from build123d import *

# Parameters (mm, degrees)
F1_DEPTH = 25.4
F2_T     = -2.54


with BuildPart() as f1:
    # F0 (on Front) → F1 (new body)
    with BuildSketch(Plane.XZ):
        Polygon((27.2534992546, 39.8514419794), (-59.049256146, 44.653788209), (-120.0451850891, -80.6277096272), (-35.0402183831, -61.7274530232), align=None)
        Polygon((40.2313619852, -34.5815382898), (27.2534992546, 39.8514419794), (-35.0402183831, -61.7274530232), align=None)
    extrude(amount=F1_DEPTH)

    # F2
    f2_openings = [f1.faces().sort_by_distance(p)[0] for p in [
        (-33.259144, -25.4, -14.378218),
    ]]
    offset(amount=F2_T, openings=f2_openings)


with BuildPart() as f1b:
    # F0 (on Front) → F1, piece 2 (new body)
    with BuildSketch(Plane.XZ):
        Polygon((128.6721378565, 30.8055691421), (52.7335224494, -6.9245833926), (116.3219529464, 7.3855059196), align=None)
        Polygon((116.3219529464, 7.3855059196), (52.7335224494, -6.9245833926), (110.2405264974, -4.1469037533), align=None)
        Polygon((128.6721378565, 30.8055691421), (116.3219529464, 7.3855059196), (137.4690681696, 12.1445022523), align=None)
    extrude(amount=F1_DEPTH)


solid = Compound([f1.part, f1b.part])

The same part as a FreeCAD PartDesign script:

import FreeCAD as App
import Part
import Sketcher

V = App.Vector
Q = App.Units.Quantity


def faces_at(feature, points):
    """Names of the faces that lie closest to the given points."""
    faces = feature.Shape.Faces
    near = lambda p: min(range(len(faces)), key=lambda i: faces[i].distToShape(Part.Vertex(*p))[0])
    return sorted({f"Face{near(p) + 1}" for p in points})


def add_polygon(sketch, points):
    """Adds a closed chain of lines whose ends are joined by coincident constraints."""
    first, n = sketch.GeometryCount, len(points)
    for a, b in zip(points, points[1:] + points[:1]):
        sketch.addGeometry(Part.LineSegment(App.Vector(*a, 0), App.Vector(*b, 0)), False)
    for i in range(n):
        sketch.addConstraint(Sketcher.Constraint("Coincident", first + i, 2, first + (i + 1) % n, 1))

doc = App.newDocument("Part")
body = doc.addObject("PartDesign::Body", "Body")

sketch1 = body.newObject("Sketcher::SketchObject", "Sketch")
sketch1.AttachmentSupport = (doc.getObject("XZ_Plane"), [""])
sketch1.MapMode = "FlatFace"
add_polygon(sketch1, [(27, 40), (-59, 45), (-120, -81), (-35, -62), (40, -35)])
sketch1.addConstraint(Sketcher.Constraint("DistanceX", -1, 1, 4, 2, 27.253499))
sketch1.addConstraint(Sketcher.Constraint("Distance", 2, 87.08079))
sketch1.addConstraint(Sketcher.Constraint("DistanceY", -1, 1, 0, 2, 44.653788))
sketch1.addConstraint(Sketcher.Constraint("DistanceY", 1, 2, -1, 1, 80.62771))
sketch1.addConstraint(Sketcher.Constraint("DistanceX", 2, 2, -1, 1, 35.040218))
sketch1.addConstraint(Sketcher.Constraint("DistanceX", -1, 1, 3, 2, 40.231362))
sketch1.addConstraint(Sketcher.Constraint("DistanceY", 3, 2, -1, 1, 34.581538))
sketch1.addConstraint(Sketcher.Constraint("DistanceY", -1, 1, 4, 2, 39.851442))
sketch1.addConstraint(Sketcher.Constraint("DistanceX", 1, 2, 0, 2, 60.995929))
sketch1.addConstraint(Sketcher.Constraint("DistanceY", 2, 2, 0, 2, 106.381241))
pad1 = body.newObject("PartDesign::Pad", "Pad")
pad1.Profile = sketch1
pad1.Length = Q("1 in")
doc.recompute()

thickness = body.newObject("PartDesign::Thickness", "Thickness")
thickness.Base = (pad1, faces_at(pad1, [(-39.907, -25.4, -17.987)]))
thickness.Value = Q("0.1 in")
thickness.Reversed = True
thickness.Join = "Arc"
body2 = doc.addObject("PartDesign::Body", "Body001")

sketch2 = body2.newObject("Sketcher::SketchObject", "Sketch001")
sketch2.AttachmentSupport = (doc.getObject("XZ_Plane001"), [""])
sketch2.MapMode = "FlatFace"
add_polygon(sketch2, [(129, 31), (53, -7), (110, -4), (116, 7), (137, 12)])
sketch2.addConstraint(Sketcher.Constraint("Distance", 0, 84.795269))
sketch2.addConstraint(Sketcher.Constraint("Distance", 1, 57.574048))
sketch2.addConstraint(Sketcher.Constraint("Distance", 3, 21.67599))
sketch2.addConstraint(Sketcher.Constraint("DistanceX", -1, 1, 3, 2, 137.469068))
sketch2.addConstraint(Sketcher.Constraint("DistanceY", -1, 1, 4, 2, 30.805569))
sketch2.addConstraint(Sketcher.Constraint("DistanceY", 0, 2, 1, 2, 2.77768))
sketch2.addConstraint(Sketcher.Constraint("DistanceY", 1, 2, 2, 2, 11.53241))
sketch2.addConstraint(Sketcher.Constraint("DistanceX", 0, 2, 2, 2, 63.58843))
sketch2.addConstraint(Sketcher.Constraint("DistanceX", 1, 2, 3, 2, 27.228542))
sketch2.addConstraint(Sketcher.Constraint("DistanceX", 4, 2, 3, 2, 8.79693))
pad2 = body2.newObject("PartDesign::Pad", "Pad001")
pad2.Profile = sketch2
pad2.Length = Q("1 in")

doc.recompute()
